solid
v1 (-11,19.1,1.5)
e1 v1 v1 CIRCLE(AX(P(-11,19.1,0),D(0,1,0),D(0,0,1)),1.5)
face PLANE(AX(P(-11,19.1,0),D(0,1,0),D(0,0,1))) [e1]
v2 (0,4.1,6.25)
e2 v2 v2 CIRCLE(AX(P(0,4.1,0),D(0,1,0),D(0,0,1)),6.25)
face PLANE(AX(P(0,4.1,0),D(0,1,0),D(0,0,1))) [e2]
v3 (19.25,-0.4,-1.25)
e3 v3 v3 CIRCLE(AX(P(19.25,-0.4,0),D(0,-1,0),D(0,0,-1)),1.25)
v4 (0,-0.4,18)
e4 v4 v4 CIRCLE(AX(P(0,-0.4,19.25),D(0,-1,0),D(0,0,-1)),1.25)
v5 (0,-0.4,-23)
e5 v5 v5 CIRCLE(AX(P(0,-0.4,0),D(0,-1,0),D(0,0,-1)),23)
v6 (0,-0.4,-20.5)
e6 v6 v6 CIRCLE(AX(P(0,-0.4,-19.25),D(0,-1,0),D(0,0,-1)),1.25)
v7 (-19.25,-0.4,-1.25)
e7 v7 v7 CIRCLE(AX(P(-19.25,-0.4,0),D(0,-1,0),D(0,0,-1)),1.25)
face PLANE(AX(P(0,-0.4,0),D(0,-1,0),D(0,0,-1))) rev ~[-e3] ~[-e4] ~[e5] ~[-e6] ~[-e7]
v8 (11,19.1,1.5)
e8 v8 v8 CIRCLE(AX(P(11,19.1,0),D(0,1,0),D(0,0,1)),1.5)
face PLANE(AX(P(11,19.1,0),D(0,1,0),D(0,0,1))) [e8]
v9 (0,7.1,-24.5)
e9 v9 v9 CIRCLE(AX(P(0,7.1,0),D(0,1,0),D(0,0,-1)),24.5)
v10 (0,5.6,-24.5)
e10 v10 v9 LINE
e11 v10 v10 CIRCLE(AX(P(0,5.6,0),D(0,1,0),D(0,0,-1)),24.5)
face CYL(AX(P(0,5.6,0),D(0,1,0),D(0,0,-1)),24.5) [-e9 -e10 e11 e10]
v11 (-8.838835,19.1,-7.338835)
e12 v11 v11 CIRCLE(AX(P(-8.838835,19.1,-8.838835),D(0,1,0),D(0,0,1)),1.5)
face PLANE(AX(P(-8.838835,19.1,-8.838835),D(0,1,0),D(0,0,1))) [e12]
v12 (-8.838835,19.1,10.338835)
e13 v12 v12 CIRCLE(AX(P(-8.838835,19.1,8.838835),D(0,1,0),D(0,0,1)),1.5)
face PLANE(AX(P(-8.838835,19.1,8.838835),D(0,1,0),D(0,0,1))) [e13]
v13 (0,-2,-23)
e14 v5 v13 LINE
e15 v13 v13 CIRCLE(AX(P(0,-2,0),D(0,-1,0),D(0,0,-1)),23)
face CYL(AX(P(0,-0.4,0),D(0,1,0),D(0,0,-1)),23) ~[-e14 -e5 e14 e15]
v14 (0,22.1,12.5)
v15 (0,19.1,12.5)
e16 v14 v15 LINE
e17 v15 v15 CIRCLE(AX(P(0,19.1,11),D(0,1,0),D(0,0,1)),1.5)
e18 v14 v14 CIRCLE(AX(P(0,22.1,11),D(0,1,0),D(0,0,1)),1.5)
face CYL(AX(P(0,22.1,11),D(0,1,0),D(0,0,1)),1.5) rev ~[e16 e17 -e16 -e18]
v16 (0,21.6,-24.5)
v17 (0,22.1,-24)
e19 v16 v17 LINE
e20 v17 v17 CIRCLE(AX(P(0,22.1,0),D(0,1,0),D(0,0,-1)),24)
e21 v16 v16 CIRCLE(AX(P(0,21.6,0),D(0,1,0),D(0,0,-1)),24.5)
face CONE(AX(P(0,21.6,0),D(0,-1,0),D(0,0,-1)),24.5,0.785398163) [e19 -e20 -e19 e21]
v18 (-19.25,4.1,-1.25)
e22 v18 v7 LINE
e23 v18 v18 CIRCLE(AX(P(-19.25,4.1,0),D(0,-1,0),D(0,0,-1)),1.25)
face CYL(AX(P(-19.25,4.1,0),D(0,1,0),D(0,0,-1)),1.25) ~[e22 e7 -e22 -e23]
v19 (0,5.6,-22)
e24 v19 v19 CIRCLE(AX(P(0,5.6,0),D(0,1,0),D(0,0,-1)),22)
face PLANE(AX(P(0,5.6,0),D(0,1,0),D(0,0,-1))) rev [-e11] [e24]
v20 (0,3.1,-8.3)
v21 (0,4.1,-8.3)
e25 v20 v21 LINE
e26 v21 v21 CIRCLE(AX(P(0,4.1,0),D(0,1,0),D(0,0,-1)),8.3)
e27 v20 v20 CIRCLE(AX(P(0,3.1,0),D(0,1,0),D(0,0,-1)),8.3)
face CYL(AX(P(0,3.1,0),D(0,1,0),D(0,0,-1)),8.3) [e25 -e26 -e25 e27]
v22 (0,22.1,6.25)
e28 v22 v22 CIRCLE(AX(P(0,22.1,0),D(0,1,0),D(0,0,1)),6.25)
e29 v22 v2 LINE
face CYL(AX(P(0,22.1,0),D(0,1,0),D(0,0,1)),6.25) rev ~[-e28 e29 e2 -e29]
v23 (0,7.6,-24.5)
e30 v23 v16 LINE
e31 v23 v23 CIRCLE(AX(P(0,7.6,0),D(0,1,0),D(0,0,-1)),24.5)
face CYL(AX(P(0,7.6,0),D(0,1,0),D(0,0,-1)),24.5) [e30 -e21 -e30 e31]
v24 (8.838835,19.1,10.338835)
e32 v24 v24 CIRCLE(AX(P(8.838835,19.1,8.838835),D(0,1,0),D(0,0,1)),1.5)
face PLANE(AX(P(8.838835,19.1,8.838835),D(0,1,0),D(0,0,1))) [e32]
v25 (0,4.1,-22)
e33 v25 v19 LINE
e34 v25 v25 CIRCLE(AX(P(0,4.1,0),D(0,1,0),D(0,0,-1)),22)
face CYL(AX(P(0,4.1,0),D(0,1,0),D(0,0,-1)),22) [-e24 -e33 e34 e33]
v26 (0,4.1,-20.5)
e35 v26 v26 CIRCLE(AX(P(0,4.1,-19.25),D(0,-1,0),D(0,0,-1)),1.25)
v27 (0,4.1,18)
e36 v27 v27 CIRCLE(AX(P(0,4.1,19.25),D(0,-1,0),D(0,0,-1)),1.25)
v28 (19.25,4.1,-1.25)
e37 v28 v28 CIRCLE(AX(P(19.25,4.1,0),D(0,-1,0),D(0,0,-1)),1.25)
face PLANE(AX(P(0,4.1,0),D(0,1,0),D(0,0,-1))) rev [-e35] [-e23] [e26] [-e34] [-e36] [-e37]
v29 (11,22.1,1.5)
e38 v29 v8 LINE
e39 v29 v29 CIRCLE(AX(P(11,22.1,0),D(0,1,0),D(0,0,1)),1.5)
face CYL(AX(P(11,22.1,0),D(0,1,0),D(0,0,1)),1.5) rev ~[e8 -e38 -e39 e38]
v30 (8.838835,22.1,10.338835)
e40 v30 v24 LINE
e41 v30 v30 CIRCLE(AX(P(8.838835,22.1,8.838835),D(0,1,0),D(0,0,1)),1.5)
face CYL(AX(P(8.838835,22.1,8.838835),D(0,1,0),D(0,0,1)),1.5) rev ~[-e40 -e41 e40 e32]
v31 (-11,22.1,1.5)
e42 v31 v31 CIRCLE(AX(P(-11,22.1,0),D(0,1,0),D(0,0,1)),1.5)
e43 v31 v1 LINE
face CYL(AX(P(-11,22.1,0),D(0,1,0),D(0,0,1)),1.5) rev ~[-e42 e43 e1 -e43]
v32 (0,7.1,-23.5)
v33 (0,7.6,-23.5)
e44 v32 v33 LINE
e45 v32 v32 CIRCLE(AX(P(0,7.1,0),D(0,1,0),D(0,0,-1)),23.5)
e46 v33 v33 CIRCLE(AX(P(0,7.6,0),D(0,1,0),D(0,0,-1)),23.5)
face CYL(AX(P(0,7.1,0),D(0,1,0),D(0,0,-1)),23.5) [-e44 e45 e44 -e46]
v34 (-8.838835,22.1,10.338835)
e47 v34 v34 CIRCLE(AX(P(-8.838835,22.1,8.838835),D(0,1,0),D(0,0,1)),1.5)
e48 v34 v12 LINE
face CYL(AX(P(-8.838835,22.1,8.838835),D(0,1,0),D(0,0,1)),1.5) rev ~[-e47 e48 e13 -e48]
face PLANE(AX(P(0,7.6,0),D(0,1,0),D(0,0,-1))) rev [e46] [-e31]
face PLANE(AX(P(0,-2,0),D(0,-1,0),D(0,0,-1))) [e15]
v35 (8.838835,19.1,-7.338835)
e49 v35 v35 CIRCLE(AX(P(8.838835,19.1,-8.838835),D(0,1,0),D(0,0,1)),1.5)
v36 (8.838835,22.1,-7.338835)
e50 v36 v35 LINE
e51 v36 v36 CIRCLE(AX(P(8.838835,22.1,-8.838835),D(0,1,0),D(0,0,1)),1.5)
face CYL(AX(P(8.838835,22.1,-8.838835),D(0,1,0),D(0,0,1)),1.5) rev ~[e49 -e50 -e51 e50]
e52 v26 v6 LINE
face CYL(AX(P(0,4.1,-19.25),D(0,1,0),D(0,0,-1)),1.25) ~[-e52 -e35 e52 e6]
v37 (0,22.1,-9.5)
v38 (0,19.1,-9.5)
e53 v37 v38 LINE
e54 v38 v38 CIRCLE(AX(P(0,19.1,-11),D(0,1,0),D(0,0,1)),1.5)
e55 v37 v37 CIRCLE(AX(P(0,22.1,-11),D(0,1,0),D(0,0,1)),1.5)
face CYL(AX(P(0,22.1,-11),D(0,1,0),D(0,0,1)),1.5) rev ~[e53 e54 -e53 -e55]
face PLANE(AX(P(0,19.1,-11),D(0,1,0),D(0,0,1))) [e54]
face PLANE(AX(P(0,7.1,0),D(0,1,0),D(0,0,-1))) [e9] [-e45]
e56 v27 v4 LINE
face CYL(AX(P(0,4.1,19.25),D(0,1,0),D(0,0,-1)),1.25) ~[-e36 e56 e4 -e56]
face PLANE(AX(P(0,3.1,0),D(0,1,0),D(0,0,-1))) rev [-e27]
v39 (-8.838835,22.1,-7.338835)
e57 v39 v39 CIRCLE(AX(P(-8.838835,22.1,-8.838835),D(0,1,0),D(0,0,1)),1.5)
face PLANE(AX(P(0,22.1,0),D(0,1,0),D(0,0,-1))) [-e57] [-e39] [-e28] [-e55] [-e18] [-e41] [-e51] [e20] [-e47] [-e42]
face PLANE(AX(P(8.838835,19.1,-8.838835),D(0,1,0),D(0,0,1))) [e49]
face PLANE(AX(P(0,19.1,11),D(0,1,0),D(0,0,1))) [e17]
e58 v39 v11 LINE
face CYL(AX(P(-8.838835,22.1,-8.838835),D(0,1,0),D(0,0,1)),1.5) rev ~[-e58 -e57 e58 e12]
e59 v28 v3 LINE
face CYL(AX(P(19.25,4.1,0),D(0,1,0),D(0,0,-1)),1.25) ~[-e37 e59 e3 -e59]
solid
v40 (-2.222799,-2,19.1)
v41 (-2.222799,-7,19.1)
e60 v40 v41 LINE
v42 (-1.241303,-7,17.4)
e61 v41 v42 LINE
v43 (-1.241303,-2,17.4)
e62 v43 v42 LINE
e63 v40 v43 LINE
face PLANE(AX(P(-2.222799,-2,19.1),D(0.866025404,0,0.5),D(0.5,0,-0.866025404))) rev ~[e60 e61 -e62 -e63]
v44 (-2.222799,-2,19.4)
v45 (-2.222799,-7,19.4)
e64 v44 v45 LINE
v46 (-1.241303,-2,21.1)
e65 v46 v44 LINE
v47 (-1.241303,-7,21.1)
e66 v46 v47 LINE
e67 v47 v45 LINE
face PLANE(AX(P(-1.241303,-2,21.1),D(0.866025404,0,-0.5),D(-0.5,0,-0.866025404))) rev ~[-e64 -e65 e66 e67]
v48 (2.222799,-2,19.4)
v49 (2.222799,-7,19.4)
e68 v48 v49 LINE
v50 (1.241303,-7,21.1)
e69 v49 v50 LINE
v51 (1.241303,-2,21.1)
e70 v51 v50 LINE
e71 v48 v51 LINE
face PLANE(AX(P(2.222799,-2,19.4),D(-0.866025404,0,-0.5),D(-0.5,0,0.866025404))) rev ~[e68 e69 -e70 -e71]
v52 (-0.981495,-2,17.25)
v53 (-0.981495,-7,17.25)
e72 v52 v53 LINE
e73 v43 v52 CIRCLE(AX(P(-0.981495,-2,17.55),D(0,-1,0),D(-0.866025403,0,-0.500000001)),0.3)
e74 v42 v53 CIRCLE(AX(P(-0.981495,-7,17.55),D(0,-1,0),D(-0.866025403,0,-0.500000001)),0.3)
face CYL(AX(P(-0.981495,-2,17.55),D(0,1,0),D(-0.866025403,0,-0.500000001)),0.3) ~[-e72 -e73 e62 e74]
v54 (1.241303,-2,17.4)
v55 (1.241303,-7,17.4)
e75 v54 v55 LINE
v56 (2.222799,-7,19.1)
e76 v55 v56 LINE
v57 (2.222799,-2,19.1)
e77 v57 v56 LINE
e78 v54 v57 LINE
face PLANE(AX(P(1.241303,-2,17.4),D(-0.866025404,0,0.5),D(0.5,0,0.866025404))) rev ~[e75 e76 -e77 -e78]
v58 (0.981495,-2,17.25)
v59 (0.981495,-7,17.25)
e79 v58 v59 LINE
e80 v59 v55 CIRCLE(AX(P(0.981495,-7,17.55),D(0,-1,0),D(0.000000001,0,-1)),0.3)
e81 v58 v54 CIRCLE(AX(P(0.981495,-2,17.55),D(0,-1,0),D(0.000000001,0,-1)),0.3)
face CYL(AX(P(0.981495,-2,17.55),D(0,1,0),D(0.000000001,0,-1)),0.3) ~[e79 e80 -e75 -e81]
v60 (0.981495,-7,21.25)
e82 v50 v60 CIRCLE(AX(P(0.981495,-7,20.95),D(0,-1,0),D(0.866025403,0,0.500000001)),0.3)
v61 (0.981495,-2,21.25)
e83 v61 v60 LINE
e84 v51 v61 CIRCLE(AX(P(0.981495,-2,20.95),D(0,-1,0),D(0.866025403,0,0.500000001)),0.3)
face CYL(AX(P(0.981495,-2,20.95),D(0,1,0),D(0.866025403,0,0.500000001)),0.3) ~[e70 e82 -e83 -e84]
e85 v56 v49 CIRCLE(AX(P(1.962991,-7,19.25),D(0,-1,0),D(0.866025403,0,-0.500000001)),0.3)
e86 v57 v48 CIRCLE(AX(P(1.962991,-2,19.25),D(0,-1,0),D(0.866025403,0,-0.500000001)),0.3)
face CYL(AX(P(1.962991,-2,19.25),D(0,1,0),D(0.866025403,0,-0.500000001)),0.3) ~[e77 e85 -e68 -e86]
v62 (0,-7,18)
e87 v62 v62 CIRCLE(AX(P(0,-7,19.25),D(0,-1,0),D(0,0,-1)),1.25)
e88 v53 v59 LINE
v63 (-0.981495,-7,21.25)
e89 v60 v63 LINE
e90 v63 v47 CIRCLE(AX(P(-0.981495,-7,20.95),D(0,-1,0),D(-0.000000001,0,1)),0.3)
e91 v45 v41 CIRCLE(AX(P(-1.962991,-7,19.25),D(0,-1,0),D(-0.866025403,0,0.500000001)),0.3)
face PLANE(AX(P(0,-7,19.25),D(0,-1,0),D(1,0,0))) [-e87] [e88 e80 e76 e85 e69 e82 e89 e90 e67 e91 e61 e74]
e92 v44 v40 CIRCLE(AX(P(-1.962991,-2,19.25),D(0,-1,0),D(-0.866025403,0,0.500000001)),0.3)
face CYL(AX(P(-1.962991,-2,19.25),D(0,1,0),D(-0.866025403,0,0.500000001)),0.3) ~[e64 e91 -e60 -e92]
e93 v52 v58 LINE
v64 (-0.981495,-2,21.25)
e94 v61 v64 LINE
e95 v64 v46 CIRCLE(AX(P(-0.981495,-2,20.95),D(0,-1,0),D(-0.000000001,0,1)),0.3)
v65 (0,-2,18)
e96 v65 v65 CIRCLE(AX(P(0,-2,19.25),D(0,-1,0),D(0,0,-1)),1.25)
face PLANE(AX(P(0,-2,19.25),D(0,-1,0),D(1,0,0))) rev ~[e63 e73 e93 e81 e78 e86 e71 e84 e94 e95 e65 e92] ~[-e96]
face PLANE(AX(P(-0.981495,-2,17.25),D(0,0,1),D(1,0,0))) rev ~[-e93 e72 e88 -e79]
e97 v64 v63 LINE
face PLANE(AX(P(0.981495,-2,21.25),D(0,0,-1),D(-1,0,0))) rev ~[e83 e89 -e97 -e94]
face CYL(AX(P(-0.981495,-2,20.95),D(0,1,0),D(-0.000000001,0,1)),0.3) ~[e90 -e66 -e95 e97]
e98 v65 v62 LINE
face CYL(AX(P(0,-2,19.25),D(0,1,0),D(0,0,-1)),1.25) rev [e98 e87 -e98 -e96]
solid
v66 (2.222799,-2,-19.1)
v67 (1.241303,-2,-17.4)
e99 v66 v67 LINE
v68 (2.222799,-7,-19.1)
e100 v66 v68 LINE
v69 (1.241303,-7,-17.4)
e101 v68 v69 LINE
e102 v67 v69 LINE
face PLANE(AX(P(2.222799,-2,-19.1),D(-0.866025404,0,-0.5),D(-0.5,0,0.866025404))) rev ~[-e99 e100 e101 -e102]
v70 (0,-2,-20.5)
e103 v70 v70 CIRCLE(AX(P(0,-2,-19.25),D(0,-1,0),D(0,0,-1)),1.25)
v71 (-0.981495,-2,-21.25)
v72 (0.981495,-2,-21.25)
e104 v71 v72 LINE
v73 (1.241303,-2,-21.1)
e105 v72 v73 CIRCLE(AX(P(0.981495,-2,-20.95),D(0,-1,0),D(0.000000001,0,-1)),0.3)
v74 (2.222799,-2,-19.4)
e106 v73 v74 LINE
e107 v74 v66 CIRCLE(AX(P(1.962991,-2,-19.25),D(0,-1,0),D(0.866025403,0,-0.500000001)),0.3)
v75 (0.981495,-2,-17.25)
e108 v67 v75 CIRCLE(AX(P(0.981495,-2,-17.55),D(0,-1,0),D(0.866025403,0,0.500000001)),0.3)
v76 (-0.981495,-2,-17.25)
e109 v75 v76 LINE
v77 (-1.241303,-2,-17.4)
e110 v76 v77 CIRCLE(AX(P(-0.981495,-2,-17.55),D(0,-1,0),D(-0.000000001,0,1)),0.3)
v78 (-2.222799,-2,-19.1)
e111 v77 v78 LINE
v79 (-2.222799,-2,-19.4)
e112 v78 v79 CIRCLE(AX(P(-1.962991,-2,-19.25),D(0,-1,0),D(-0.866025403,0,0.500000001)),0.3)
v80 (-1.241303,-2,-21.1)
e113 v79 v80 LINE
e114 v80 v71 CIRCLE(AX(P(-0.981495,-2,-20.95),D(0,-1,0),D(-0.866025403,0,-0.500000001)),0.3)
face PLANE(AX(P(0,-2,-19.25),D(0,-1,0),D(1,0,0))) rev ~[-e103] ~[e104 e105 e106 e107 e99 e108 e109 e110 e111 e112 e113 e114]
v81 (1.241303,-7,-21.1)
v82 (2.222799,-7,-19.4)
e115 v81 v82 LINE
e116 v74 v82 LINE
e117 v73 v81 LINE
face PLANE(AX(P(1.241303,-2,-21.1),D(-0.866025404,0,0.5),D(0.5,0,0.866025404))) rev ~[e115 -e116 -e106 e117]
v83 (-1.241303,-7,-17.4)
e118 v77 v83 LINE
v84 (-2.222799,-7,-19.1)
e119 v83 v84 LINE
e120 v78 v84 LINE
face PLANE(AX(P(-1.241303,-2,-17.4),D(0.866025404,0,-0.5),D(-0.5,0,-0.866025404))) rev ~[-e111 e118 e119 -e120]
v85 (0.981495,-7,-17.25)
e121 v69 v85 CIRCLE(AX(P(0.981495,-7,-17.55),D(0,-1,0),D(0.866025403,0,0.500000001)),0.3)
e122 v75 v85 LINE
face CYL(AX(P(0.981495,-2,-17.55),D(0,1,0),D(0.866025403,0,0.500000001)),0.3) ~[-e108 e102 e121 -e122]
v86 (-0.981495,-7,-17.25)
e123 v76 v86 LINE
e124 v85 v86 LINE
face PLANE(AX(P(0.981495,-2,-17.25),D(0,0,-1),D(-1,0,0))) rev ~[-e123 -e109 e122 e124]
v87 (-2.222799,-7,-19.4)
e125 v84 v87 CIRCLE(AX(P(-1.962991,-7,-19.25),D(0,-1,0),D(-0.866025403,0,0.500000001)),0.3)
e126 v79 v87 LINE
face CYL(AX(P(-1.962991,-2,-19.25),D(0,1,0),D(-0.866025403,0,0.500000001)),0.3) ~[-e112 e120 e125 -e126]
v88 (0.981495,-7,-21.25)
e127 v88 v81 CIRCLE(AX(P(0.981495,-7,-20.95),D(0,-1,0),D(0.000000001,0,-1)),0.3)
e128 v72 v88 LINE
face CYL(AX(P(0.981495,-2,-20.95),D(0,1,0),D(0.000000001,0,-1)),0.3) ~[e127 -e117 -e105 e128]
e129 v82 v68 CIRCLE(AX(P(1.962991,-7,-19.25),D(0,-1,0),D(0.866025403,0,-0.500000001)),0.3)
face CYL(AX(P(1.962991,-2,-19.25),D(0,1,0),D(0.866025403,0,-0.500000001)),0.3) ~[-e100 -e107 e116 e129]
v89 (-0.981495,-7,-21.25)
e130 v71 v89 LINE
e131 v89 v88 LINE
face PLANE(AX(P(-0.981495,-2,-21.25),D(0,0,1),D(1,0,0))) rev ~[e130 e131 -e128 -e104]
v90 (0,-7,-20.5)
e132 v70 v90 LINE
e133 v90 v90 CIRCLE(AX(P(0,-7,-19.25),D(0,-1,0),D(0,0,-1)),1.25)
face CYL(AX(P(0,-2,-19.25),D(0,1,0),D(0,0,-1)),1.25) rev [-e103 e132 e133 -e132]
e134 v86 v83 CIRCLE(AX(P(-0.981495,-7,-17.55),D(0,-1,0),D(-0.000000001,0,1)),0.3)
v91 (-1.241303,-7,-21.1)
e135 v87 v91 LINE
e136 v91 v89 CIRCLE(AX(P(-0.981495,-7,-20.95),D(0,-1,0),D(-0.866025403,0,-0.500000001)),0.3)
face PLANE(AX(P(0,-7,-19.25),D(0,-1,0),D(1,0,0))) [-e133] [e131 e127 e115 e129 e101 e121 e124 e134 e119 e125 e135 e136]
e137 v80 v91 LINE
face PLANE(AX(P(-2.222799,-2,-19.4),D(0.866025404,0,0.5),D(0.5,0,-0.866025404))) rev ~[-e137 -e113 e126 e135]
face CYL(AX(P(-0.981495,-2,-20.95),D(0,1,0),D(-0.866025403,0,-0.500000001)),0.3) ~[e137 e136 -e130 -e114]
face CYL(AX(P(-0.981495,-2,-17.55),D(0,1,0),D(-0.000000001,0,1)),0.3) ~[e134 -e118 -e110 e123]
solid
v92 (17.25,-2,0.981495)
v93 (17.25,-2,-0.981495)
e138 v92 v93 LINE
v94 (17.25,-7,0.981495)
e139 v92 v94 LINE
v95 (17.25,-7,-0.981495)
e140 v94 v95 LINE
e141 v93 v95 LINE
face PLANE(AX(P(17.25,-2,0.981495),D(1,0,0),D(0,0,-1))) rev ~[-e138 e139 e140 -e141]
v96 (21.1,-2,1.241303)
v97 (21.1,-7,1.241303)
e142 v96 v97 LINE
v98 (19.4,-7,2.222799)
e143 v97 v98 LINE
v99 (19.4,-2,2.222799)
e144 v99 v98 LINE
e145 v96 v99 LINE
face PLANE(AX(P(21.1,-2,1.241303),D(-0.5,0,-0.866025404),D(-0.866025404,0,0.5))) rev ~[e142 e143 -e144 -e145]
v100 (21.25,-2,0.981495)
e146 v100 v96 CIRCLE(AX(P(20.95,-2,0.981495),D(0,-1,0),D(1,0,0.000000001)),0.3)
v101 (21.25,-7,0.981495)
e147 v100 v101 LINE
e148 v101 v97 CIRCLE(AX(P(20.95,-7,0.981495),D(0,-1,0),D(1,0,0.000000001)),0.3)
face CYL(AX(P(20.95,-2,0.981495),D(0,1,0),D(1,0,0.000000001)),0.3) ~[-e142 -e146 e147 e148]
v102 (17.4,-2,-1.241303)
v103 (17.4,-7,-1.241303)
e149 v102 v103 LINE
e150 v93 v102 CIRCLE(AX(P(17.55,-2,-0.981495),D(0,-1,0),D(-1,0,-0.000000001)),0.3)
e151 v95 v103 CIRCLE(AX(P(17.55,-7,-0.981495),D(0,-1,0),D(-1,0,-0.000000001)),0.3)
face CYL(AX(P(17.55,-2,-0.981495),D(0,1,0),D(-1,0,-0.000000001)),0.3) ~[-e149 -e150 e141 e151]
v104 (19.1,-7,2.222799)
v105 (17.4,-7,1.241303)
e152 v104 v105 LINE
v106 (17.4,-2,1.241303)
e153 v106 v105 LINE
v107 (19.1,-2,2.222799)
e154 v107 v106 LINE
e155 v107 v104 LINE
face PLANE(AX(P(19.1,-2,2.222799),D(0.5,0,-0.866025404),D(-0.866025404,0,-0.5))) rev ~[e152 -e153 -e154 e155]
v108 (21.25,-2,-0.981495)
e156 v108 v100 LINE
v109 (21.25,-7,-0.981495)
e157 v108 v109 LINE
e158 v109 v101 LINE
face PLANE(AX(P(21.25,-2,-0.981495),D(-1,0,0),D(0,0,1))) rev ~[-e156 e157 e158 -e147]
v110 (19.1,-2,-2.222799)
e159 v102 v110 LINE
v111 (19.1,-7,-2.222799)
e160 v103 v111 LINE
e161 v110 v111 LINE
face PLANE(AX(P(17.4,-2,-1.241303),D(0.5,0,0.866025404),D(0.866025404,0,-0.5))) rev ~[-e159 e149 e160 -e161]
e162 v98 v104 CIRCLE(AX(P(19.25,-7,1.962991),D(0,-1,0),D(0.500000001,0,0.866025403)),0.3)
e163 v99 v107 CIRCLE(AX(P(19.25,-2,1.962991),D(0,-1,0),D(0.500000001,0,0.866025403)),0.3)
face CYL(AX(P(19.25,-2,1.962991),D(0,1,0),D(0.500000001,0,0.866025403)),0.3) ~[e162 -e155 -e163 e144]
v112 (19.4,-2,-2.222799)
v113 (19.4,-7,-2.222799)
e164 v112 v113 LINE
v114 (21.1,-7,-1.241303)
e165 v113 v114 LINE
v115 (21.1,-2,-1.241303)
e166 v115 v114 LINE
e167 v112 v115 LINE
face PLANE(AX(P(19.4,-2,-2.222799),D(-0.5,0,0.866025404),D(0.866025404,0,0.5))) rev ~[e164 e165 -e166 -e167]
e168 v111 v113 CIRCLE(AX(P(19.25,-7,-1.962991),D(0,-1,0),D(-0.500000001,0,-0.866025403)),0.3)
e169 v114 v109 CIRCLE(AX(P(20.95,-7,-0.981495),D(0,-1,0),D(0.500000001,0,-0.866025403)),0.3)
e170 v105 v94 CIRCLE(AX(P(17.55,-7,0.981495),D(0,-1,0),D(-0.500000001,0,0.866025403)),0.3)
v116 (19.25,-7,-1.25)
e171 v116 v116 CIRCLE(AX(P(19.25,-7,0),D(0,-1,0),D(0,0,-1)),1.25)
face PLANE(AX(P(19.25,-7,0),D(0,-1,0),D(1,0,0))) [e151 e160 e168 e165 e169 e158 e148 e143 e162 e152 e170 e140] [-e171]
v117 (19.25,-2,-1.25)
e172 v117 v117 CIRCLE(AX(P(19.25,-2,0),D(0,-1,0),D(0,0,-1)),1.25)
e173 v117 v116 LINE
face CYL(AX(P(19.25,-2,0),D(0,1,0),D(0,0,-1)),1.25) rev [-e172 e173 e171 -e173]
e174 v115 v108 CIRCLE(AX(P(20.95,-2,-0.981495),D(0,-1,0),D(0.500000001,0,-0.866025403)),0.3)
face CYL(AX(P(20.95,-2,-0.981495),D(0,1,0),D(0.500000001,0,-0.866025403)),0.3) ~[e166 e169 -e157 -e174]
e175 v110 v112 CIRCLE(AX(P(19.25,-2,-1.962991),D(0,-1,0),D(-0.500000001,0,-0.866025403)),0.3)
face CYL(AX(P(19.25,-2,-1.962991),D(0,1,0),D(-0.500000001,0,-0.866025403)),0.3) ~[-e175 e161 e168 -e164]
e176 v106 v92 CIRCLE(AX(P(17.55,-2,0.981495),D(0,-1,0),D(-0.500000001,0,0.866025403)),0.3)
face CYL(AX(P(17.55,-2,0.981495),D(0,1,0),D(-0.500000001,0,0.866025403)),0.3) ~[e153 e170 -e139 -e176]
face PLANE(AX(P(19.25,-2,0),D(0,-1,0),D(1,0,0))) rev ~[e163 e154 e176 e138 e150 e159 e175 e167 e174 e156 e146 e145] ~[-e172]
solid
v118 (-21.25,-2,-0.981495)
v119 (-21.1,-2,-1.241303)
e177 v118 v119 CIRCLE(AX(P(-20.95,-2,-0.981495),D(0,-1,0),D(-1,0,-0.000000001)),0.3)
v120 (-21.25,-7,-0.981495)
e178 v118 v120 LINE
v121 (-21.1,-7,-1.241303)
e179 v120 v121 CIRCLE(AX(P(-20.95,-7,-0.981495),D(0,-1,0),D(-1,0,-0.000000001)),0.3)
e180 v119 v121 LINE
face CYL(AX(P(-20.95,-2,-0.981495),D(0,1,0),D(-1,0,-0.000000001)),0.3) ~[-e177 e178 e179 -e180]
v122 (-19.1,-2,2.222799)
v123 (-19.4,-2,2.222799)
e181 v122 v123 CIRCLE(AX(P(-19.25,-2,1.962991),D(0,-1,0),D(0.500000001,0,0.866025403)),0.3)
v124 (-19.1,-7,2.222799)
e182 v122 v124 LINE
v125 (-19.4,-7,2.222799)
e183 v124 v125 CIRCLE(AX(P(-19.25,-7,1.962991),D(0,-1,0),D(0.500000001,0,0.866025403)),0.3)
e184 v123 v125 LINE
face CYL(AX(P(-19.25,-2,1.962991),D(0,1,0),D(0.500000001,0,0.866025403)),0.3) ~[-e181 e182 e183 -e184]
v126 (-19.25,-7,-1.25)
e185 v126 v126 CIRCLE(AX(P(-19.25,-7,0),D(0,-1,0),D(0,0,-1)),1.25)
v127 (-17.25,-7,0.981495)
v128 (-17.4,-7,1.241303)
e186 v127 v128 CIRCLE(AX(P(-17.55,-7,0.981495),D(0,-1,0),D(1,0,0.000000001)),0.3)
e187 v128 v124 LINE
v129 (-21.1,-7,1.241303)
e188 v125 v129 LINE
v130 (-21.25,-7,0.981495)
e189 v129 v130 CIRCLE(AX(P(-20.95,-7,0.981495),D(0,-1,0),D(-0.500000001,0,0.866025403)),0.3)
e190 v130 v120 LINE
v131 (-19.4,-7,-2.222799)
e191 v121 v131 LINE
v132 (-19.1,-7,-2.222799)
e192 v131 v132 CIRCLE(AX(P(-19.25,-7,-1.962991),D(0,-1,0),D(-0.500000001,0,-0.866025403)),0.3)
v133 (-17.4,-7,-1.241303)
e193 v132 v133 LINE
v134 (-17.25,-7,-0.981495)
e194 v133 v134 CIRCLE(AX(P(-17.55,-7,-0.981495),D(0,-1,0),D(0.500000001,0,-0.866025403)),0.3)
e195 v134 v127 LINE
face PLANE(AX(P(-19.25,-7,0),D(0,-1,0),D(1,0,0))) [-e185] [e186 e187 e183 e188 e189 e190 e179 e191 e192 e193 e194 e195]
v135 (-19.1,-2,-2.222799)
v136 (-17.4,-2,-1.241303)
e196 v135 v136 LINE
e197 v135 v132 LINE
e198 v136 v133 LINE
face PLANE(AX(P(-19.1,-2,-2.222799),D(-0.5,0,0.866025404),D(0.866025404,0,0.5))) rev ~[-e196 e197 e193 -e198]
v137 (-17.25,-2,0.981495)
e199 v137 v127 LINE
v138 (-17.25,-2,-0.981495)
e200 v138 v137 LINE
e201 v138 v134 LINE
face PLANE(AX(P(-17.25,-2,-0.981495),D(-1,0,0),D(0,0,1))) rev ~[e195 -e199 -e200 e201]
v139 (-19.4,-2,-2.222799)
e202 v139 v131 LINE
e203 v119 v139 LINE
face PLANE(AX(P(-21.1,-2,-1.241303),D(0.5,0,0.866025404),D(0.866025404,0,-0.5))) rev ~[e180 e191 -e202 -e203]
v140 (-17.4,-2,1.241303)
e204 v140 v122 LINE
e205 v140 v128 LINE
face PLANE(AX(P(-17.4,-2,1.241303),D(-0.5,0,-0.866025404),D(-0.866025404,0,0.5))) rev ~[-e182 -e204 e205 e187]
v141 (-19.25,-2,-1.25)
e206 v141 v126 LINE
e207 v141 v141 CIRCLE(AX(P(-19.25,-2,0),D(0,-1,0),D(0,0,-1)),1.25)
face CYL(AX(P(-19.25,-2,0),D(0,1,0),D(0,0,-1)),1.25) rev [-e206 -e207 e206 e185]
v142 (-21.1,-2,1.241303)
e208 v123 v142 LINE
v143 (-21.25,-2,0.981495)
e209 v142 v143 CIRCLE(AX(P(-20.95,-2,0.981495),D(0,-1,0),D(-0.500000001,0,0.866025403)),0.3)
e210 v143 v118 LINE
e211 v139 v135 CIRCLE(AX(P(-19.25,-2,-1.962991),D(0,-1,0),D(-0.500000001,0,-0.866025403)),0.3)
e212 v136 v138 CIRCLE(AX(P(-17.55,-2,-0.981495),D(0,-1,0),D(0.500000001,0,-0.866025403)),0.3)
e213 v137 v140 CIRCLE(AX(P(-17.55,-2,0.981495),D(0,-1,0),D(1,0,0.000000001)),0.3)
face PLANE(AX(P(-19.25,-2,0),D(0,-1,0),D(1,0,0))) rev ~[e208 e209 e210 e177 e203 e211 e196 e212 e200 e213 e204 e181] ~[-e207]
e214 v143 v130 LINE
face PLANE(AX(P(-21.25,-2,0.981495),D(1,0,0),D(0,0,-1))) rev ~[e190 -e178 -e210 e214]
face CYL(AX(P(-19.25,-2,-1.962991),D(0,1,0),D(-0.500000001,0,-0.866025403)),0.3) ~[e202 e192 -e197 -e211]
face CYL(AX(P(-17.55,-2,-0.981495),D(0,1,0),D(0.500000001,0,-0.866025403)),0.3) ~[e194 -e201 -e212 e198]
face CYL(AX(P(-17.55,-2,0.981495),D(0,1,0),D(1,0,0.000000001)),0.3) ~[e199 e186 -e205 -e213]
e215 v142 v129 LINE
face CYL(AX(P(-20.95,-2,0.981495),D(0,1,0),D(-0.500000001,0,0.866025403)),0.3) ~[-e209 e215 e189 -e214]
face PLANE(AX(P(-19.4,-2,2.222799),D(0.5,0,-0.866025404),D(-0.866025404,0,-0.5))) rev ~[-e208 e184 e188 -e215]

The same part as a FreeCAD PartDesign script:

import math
import FreeCAD as App
import Part
import Sketcher
from FreeCAD import Vector
Q = App.Units.Quantity


def add_polygon(sketch, points):
    """Adds a closed chain of lines whose ends are joined by coincident constraints."""
    first, n = sketch.GeometryCount, len(points)
    for a, b in zip(points, points[1:] + points[:1]):
        sketch.addGeometry(Part.LineSegment(App.Vector(*a, 0), App.Vector(*b, 0)), False)
    for i in range(n):
        sketch.addConstraint(Sketcher.Constraint("Coincident", first + i, 2, first + (i + 1) % n, 1))

doc = App.newDocument("Part")
body = doc.addObject("PartDesign::Body", "Body")

sketch1 = body.newObject("Sketcher::SketchObject", "Sketch")
sketch1.AttachmentSupport = (doc.getObject("XY_Plane"), [""])
sketch1.MapMode = "FlatFace"
add_polygon(sketch1, [(24, 22.1), (0, 22.1), (0, 3.1), (8.3, 3.1), (8.3, 4.1), (22, 4.1), (22, 5.6), (24.5, 5.6), (24.5, 7.1), (23.5, 7.1), (23.5, 7.6), (24.5, 7.6), (24.5, 21.6)])
sketch1.addConstraint([
    Sketcher.Constraint("Horizontal", 0),
    Sketcher.Constraint("Vertical", 1),
    Sketcher.Constraint("Horizontal", 2),
    Sketcher.Constraint("Vertical", 3),
    Sketcher.Constraint("Horizontal", 4),
    Sketcher.Constraint("Vertical", 5),
    Sketcher.Constraint("Horizontal", 6),
    Sketcher.Constraint("Vertical", 7),
    Sketcher.Constraint("Horizontal", 8),
    Sketcher.Constraint("Vertical", 9),
    Sketcher.Constraint("Horizontal", 10),
    Sketcher.Constraint("Vertical", 11),
    Sketcher.Constraint("PointOnObject", 0, 2, -2),
    Sketcher.Constraint("Vertical", 7, 2, 10, 2),
    Sketcher.Constraint("Equal", 10, 3),
    Sketcher.Constraint("Equal", 5, 7),
    Sketcher.Constraint("DistanceX", 0, 2, 0, 1, 24.0),
    Sketcher.Constraint("DistanceX", 8, 2, 8, 1, 1.0),
    Sketcher.Constraint("DistanceY", 1, 2, 1, 1, 19.0),
    Sketcher.Constraint("DistanceY", 11, 1, 11, 2, 14.0),
    Sketcher.Constraint("Angle", 12, Q("135 deg")),
    Sketcher.Constraint("DistanceX", 2, 1, 2, 2, 8.3),
    Sketcher.Constraint("DistanceX", 4, 1, 4, 2, 13.7),
    Sketcher.Constraint("DistanceX", 6, 1, 6, 2, 2.5),
    Sketcher.Constraint("DistanceY", 5, 1, 5, 2, 1.5),
    Sketcher.Constraint("DistanceY", -1, 1, 0, 2, 22.1),
])
revolution = body.newObject("PartDesign::Revolution", "Revolution")
revolution.Profile = sketch1
revolution.ReferenceAxis = (sketch1, ["V_Axis"])
revolution.Angle = 360

sketch2 = body.newObject("Sketcher::SketchObject", "Sketch001")
sketch2.AttachmentSupport = (doc.getObject("XZ_Plane"), [""])
sketch2.MapMode = "FlatFace"
sketch2.AttachmentOffset = App.Placement(Vector(0, 0, -22.1), App.Rotation())
sketch2.addGeometry([
    Part.Circle(Vector(0, -11, 0), Vector(0, 0, 1), 1.5),
    Part.Circle(Vector(11, 0, 0), Vector(0, 0, 1), 1.5),
    Part.Circle(Vector(0, 11, 0), Vector(0, 0, 1), 1.5),
    Part.Circle(Vector(-11, 0, 0), Vector(0, 0, 1), 1.5),
    Part.Circle(Vector(8.838835, -8.838835, 0), Vector(0, 0, 1), 1.5),
    Part.Circle(Vector(8.838835, 8.838835, 0), Vector(0, 0, 1), 1.5),
    Part.Circle(Vector(-8.838835, 8.838835, 0), Vector(0, 0, 1), 1.5),
    Part.Circle(Vector(-8.838835, -8.838835, 0), Vector(0, 0, 1), 1.5),
], False)
sketch2.addConstraint([
    Sketcher.Constraint("Equal", 0, 1),
    Sketcher.Constraint("Equal", 1, 2),
    Sketcher.Constraint("Equal", 2, 3),
    Sketcher.Constraint("Equal", 3, 4),
    Sketcher.Constraint("Equal", 4, 5),
    Sketcher.Constraint("Equal", 5, 6),
    Sketcher.Constraint("Equal", 6, 7),
    Sketcher.Constraint("Symmetric", 0, 3, 2, 3, -1, 1),
    Sketcher.Constraint("Symmetric", 1, 3, 3, 3, -1, 1),
    Sketcher.Constraint("Symmetric", 4, 3, 6, 3, -1, 1),
    Sketcher.Constraint("Symmetric", 5, 3, 7, 3, -1, 1),
    Sketcher.Constraint("Symmetric", 5, 3, 6, 3, -2),
    Sketcher.Constraint("PointOnObject", 0, 3, -2),
    Sketcher.Constraint("PointOnObject", 1, 3, -1),
    Sketcher.Constraint("Diameter", 0, 3.0),
    Sketcher.Constraint("DistanceY", 0, 3, -1, 1, 11.0),
    Sketcher.Constraint("DistanceX", -1, 1, 1, 3, 11.0),
    Sketcher.Constraint("DistanceY", 4, 3, 5, 3, 17.67767),
    Sketcher.Constraint("DistanceX", 6, 3, 5, 3, 17.67767),
])
pocket1 = body.newObject("PartDesign::Pocket", "Pocket")
pocket1.Profile = sketch2
pocket1.Length = 3
pocket1.Reversed = True

sketch3 = body.newObject("Sketcher::SketchObject", "Sketch002")
sketch3.AttachmentSupport = (doc.getObject("XZ_Plane"), [""])
sketch3.MapMode = "FlatFace"
sketch3.AttachmentOffset = App.Placement(Vector(0, 0, -22.1), App.Rotation())
sketch3.addGeometry(Part.Circle(Vector(0, 0, 0), Vector(0, 0, 1), 6.25), False)
sketch3.addConstraint([
    Sketcher.Constraint("Coincident", 0, 3, -1, 1),
    Sketcher.Constraint("Diameter", 0, 12.5),
])
pocket2 = body.newObject("PartDesign::Pocket", "Pocket001")
pocket2.Profile = sketch3
pocket2.Length = 18
pocket2.Reversed = True

sketch4 = body.newObject("Sketcher::SketchObject", "Sketch003")
sketch4.AttachmentSupport = (doc.getObject("XZ_Plane"), [""])
sketch4.MapMode = "FlatFace"
sketch4.AttachmentOffset = App.Placement(Vector(0, 0, -4.1), App.Rotation())
sketch4.addGeometry([
    Part.Circle(Vector(0, 19.25, 0), Vector(0, 0, 1), 1.25),
    Part.Circle(Vector(19.25, 0, 0), Vector(0, 0, 1), 1.25),
    Part.Circle(Vector(0, -19.25, 0), Vector(0, 0, 1), 1.25),
    Part.Circle(Vector(-19.25, 0, 0), Vector(0, 0, 1), 1.25),
], False)
sketch4.addConstraint([
    Sketcher.Constraint("Equal", 0, 1),
    Sketcher.Constraint("Equal", 1, 2),
    Sketcher.Constraint("Equal", 2, 3),
    Sketcher.Constraint("Symmetric", 0, 3, 2, 3, -1, 1),
    Sketcher.Constraint("Symmetric", 1, 3, 3, 3, -1, 1),
    Sketcher.Constraint("PointOnObject", 0, 3, -2),
    Sketcher.Constraint("PointOnObject", 1, 3, -1),
    Sketcher.Constraint("Diameter", 0, 2.5),
    Sketcher.Constraint("DistanceY", 2, 3, 0, 3, 38.5),
    Sketcher.Constraint("DistanceX", 3, 3, 1, 3, 38.5),
])
pad1 = body.newObject("PartDesign::Pad", "Pad")
pad1.Profile = sketch4
pad1.Length = 4.5

sketch5 = body.newObject("Sketcher::SketchObject", "Sketch004")
sketch5.AttachmentSupport = (doc.getObject("XZ_Plane"), [""])
sketch5.MapMode = "FlatFace"
sketch5.AttachmentOffset = App.Placement(Vector(0, 0, 0.4), App.Rotation())
sketch5.addGeometry(Part.Circle(Vector(0, 0, 0), Vector(0, 0, 1), 23), False)
sketch5.addConstraint([
    Sketcher.Constraint("Coincident", 0, 3, -1, 1),
    Sketcher.Constraint("Diameter", 0, 46.0),
])
pad2 = body.newObject("PartDesign::Pad", "Pad001")
pad2.Profile = sketch5
pad2.Length = 1.6
body2 = doc.addObject("PartDesign::Body", "Body001")

sketch6 = body2.newObject("Sketcher::SketchObject", "Sketch005")
sketch6.AttachmentSupport = (doc.getObject("XZ_Plane001"), [""])
sketch6.MapMode = "FlatFace"
sketch6.AttachmentOffset = App.Placement(Vector(0, 0, 2), App.Rotation())
sketch6.addGeometry([
    Part.LineSegment(Vector(21.1, 1.241303, 0), Vector(19.4, 2.222799, 0)),
    Part.ArcOfCircle(Part.Circle(Vector(19.25, 1.962991, 0), Vector(0, 0, 1), 0.3), math.radians(60), math.radians(120)),
    Part.LineSegment(Vector(19.1, 2.222799, 0), Vector(17.4, 1.241303, 0)),
    Part.ArcOfCircle(Part.Circle(Vector(17.55, 0.981495, 0), Vector(0, 0, 1), 0.3), math.radians(120), math.radians(180)),
    Part.LineSegment(Vector(17.25, 0.981495, 0), Vector(17.25, -0.981495, 0)),
    Part.ArcOfCircle(Part.Circle(Vector(17.55, -0.981495, 0), Vector(0, 0, 1), 0.3), math.radians(180), math.radians(240)),
    Part.LineSegment(Vector(17.4, -1.241303, 0), Vector(19.1, -2.222799, 0)),
    Part.ArcOfCircle(Part.Circle(Vector(19.25, -1.962991, 0), Vector(0, 0, 1), 0.3), math.radians(-120), math.radians(-60)),
    Part.LineSegment(Vector(19.4, -2.222799, 0), Vector(21.1, -1.241303, 0)),
    Part.ArcOfCircle(Part.Circle(Vector(20.95, -0.981495, 0), Vector(0, 0, 1), 0.3), math.radians(-60), math.radians(0)),
    Part.LineSegment(Vector(21.25, -0.981495, 0), Vector(21.25, 0.981495, 0)),
    Part.ArcOfCircle(Part.Circle(Vector(20.95, 0.981495, 0), Vector(0, 0, 1), 0.3), math.radians(0), math.radians(60)),
    Part.Circle(Vector(19.25, 0, 0), Vector(0, 0, 1), 1.25),
], False)
sketch6.addConstraint([
    Sketcher.Constraint("Tangent", 0, 2, 1, 1),
    Sketcher.Constraint("Tangent", 1, 2, 2, 1),
    Sketcher.Constraint("Tangent", 2, 2, 3, 1),
    Sketcher.Constraint("Tangent", 3, 2, 4, 1),
    Sketcher.Constraint("Tangent", 4, 2, 5, 1),
    Sketcher.Constraint("Tangent", 5, 2, 6, 1),
    Sketcher.Constraint("Tangent", 6, 2, 7, 1),
    Sketcher.Constraint("Tangent", 7, 2, 8, 1),
    Sketcher.Constraint("Tangent", 8, 2, 9, 1),
    Sketcher.Constraint("Tangent", 9, 2, 10, 1),
    Sketcher.Constraint("Tangent", 10, 2, 11, 1),
    Sketcher.Constraint("Tangent", 11, 2, 0, 1),
    Sketcher.Constraint("Vertical", 4),
    Sketcher.Constraint("Vertical", 10),
    Sketcher.Constraint("Equal", 1, 3),
    Sketcher.Constraint("Equal", 3, 5),
    Sketcher.Constraint("Equal", 5, 7),
    Sketcher.Constraint("Equal", 7, 9),
    Sketcher.Constraint("Equal", 9, 11),
    Sketcher.Constraint("Symmetric", 1, 3, 7, 3, -1),
    Sketcher.Constraint("PointOnObject", 12, 3, -1),
    Sketcher.Constraint("Parallel", 0, 6),
    Sketcher.Constraint("Parallel", 2, 8),
    Sketcher.Constraint("Horizontal", 5, 3, 9, 3),
    Sketcher.Constraint("Horizontal", 3, 3, 11, 3),
    Sketcher.Constraint("Vertical", 7, 3, 12, 3),
    Sketcher.Constraint("Diameter", 12, 2.5),
    Sketcher.Constraint("Radius", 1, 0.3),
    Sketcher.Constraint("Angle", 0, Q("150 deg")),
    Sketcher.Constraint("DistanceX", 2, 2, 0, 2, 2.0),
    Sketcher.Constraint("DistanceX", -1, 1, 0, 2, 19.4),
    Sketcher.Constraint("DistanceY", 4, 2, 4, 1, 1.962991),
])
pad3 = body2.newObject("PartDesign::Pad", "Pad002")
pad3.Profile = sketch6
pad3.Length = 5
body3 = doc.addObject("PartDesign::Body", "Body002")

sketch7 = body3.newObject("Sketcher::SketchObject", "Sketch006")
sketch7.AttachmentSupport = (doc.getObject("XZ_Plane002"), [""])
sketch7.MapMode = "FlatFace"
sketch7.AttachmentOffset = App.Placement(Vector(0, 0, 2), App.Rotation())
sketch7.addGeometry([
    Part.LineSegment(Vector(-1.241303, 21.1, 0), Vector(-2.222799, 19.4, 0)),
    Part.ArcOfCircle(Part.Circle(Vector(-1.962991, 19.25, 0), Vector(0, 0, 1), 0.3), math.radians(150), math.radians(210)),
    Part.LineSegment(Vector(-2.222799, 19.1, 0), Vector(-1.241303, 17.4, 0)),
    Part.ArcOfCircle(Part.Circle(Vector(-0.981495, 17.55, 0), Vector(0, 0, 1), 0.3), math.radians(-150), math.radians(-90)),
    Part.LineSegment(Vector(-0.981495, 17.25, 0), Vector(0.981495, 17.25, 0)),
    Part.ArcOfCircle(Part.Circle(Vector(0.981495, 17.55, 0), Vector(0, 0, 1), 0.3), math.radians(-90), math.radians(-30)),
    Part.LineSegment(Vector(1.241303, 17.4, 0), Vector(2.222799, 19.1, 0)),
    Part.ArcOfCircle(Part.Circle(Vector(1.962991, 19.25, 0), Vector(0, 0, 1), 0.3), math.radians(-30), math.radians(30)),
    Part.LineSegment(Vector(2.222799, 19.4, 0), Vector(1.241303, 21.1, 0)),
    Part.ArcOfCircle(Part.Circle(Vector(0.981495, 20.95, 0), Vector(0, 0, 1), 0.3), math.radians(30), math.radians(90)),
    Part.LineSegment(Vector(0.981495, 21.25, 0), Vector(-0.981495, 21.25, 0)),
    Part.ArcOfCircle(Part.Circle(Vector(-0.981495, 20.95, 0), Vector(0, 0, 1), 0.3), math.radians(90), math.radians(150)),
    Part.Circle(Vector(0, 19.25, 0), Vector(0, 0, 1), 1.25),
], False)
sketch7.addConstraint([
    Sketcher.Constraint("Tangent", 0, 2, 1, 1),
    Sketcher.Constraint("Tangent", 1, 2, 2, 1),
    Sketcher.Constraint("Tangent", 2, 2, 3, 1),
    Sketcher.Constraint("Tangent", 3, 2, 4, 1),
    Sketcher.Constraint("Tangent", 4, 2, 5, 1),
    Sketcher.Constraint("Tangent", 5, 2, 6, 1),
    Sketcher.Constraint("Tangent", 6, 2, 7, 1),
    Sketcher.Constraint("Tangent", 7, 2, 8, 1),
    Sketcher.Constraint("Tangent", 8, 2, 9, 1),
    Sketcher.Constraint("Tangent", 9, 2, 10, 1),
    Sketcher.Constraint("Tangent", 10, 2, 11, 1),
    Sketcher.Constraint("Tangent", 11, 2, 0, 1),
    Sketcher.Constraint("Horizontal", 4),
    Sketcher.Constraint("Horizontal", 10),
    Sketcher.Constraint("Equal", 1, 3),
    Sketcher.Constraint("Equal", 3, 5),
    Sketcher.Constraint("Equal", 5, 7),
    Sketcher.Constraint("Equal", 7, 9),
    Sketcher.Constraint("Equal", 9, 11),
    Sketcher.Constraint("Symmetric", 1, 3, 7, 3, -2),
    Sketcher.Constraint("PointOnObject", 12, 3, -2),
    Sketcher.Constraint("Parallel", 0, 6),
    Sketcher.Constraint("Parallel", 2, 8),
    Sketcher.Constraint("Horizontal", 7, 3, 12, 3),
    Sketcher.Constraint("Horizontal", 2, 2, 5, 2),
    Sketcher.Constraint("Vertical", 5, 3, 9, 3),
    Sketcher.Constraint("Diameter", 12, 2.5),
    Sketcher.Constraint("Radius", 1, 0.3),
    Sketcher.Constraint("Angle", 0, Q("-120 deg")),
    Sketcher.Constraint("DistanceY", 2, 2, 0, 2, 2.0),
    Sketcher.Constraint("DistanceY", -1, 1, 0, 2, 19.4),
    Sketcher.Constraint("DistanceX", 4, 1, 4, 2, 1.962991),
])
pad4 = body3.newObject("PartDesign::Pad", "Pad003")
pad4.Profile = sketch7
pad4.Length = 5
body4 = doc.addObject("PartDesign::Body", "Body003")

sketch8 = body4.newObject("Sketcher::SketchObject", "Sketch007")
sketch8.AttachmentSupport = (doc.getObject("XZ_Plane003"), [""])
sketch8.MapMode = "FlatFace"
sketch8.AttachmentOffset = App.Placement(Vector(0, 0, 2), App.Rotation())
sketch8.addGeometry([
    Part.LineSegment(Vector(1.241303, -21.1, 0), Vector(2.222799, -19.4, 0)),
    Part.ArcOfCircle(Part.Circle(Vector(1.962991, -19.25, 0), Vector(0, 0, 1), 0.3), math.radians(-30), math.radians(30)),
    Part.LineSegment(Vector(2.222799, -19.1, 0), Vector(1.241303, -17.4, 0)),
    Part.ArcOfCircle(Part.Circle(Vector(0.981495, -17.55, 0), Vector(0, 0, 1), 0.3), math.radians(30), math.radians(90)),
    Part.LineSegment(Vector(0.981495, -17.25, 0), Vector(-0.981495, -17.25, 0)),
    Part.ArcOfCircle(Part.Circle(Vector(-0.981495, -17.55, 0), Vector(0, 0, 1), 0.3), math.radians(90), math.radians(150)),
    Part.LineSegment(Vector(-1.241303, -17.4, 0), Vector(-2.222799, -19.1, 0)),
    Part.ArcOfCircle(Part.Circle(Vector(-1.962991, -19.25, 0), Vector(0, 0, 1), 0.3), math.radians(150), math.radians(210)),
    Part.LineSegment(Vector(-2.222799, -19.4, 0), Vector(-1.241303, -21.1, 0)),
    Part.ArcOfCircle(Part.Circle(Vector(-0.981495, -20.95, 0), Vector(0, 0, 1), 0.3), math.radians(-150), math.radians(-90)),
    Part.LineSegment(Vector(-0.981495, -21.25, 0), Vector(0.981495, -21.25, 0)),
    Part.ArcOfCircle(Part.Circle(Vector(0.981495, -20.95, 0), Vector(0, 0, 1), 0.3), math.radians(-90), math.radians(-30)),
    Part.Circle(Vector(0, -19.25, 0), Vector(0, 0, 1), 1.25),
], False)
sketch8.addConstraint([
    Sketcher.Constraint("Tangent", 0, 2, 1, 1),
    Sketcher.Constraint("Tangent", 1, 2, 2, 1),
    Sketcher.Constraint("Tangent", 2, 2, 3, 1),
    Sketcher.Constraint("Tangent", 3, 2, 4, 1),
    Sketcher.Constraint("Tangent", 4, 2, 5, 1),
    Sketcher.Constraint("Tangent", 5, 2, 6, 1),
    Sketcher.Constraint("Tangent", 6, 2, 7, 1),
    Sketcher.Constraint("Tangent", 7, 2, 8, 1),
    Sketcher.Constraint("Tangent", 8, 2, 9, 1),
    Sketcher.Constraint("Tangent", 9, 2, 10, 1),
    Sketcher.Constraint("Tangent", 10, 2, 11, 1),
    Sketcher.Constraint("Tangent", 11, 2, 0, 1),
    Sketcher.Constraint("Horizontal", 4),
    Sketcher.Constraint("Horizontal", 10),
    Sketcher.Constraint("Equal", 1, 3),
    Sketcher.Constraint("Equal", 3, 5),
    Sketcher.Constraint("Equal", 5, 7),
    Sketcher.Constraint("Equal", 7, 9),
    Sketcher.Constraint("Equal", 9, 11),
    Sketcher.Constraint("Symmetric", 1, 3, 7, 3, -2),
    Sketcher.Constraint("PointOnObject", 12, 3, -2),
    Sketcher.Constraint("Parallel", 0, 6),
    Sketcher.Constraint("Parallel", 2, 8),
    Sketcher.Constraint("Horizontal", 7, 3, 12, 3),
    Sketcher.Constraint("Horizontal", 2, 2, 5, 2),
    Sketcher.Constraint("Vertical", 5, 3, 9, 3),
    Sketcher.Constraint("Diameter", 12, 2.5),
    Sketcher.Constraint("Radius", 1, 0.3),
    Sketcher.Constraint("Angle", 0, Q("60 deg")),
    Sketcher.Constraint("DistanceY", 0, 2, 2, 2, 2.0),
    Sketcher.Constraint("DistanceY", 0, 2, -1, 1, 19.4),
    Sketcher.Constraint("DistanceX", 4, 2, 4, 1, 1.962991),
])
pad5 = body4.newObject("PartDesign::Pad", "Pad004")
pad5.Profile = sketch8
pad5.Length = 5
body5 = doc.addObject("PartDesign::Body", "Body004")

sketch9 = body5.newObject("Sketcher::SketchObject", "Sketch008")
sketch9.AttachmentSupport = (doc.getObject("XZ_Plane004"), [""])
sketch9.MapMode = "FlatFace"
sketch9.AttachmentOffset = App.Placement(Vector(0, 0, 2), App.Rotation())
sketch9.addGeometry([
    Part.LineSegment(Vector(-21.1, -1.241303, 0), Vector(-19.4, -2.222799, 0)),
    Part.ArcOfCircle(Part.Circle(Vector(-19.25, -1.962991, 0), Vector(0, 0, 1), 0.3), math.radians(-120), math.radians(-60)),
    Part.LineSegment(Vector(-19.1, -2.222799, 0), Vector(-17.4, -1.241303, 0)),
    Part.ArcOfCircle(Part.Circle(Vector(-17.55, -0.981495, 0), Vector(0, 0, 1), 0.3), math.radians(-60), math.radians(0)),
    Part.LineSegment(Vector(-17.25, -0.981495, 0), Vector(-17.25, 0.981495, 0)),
    Part.ArcOfCircle(Part.Circle(Vector(-17.55, 0.981495, 0), Vector(0, 0, 1), 0.3), math.radians(0), math.radians(60)),
    Part.LineSegment(Vector(-17.4, 1.241303, 0), Vector(-19.1, 2.222799, 0)),
    Part.ArcOfCircle(Part.Circle(Vector(-19.25, 1.962991, 0), Vector(0, 0, 1), 0.3), math.radians(60), math.radians(120)),
    Part.LineSegment(Vector(-19.4, 2.222799, 0), Vector(-21.1, 1.241303, 0)),
    Part.ArcOfCircle(Part.Circle(Vector(-20.95, 0.981495, 0), Vector(0, 0, 1), 0.3), math.radians(120), math.radians(180)),
    Part.LineSegment(Vector(-21.25, 0.981495, 0), Vector(-21.25, -0.981495, 0)),
    Part.ArcOfCircle(Part.Circle(Vector(-20.95, -0.981495, 0), Vector(0, 0, 1), 0.3), math.radians(180), math.radians(240)),
    Part.Circle(Vector(-19.25, 0, 0), Vector(0, 0, 1), 1.25),
], False)
sketch9.addConstraint([
    Sketcher.Constraint("Tangent", 0, 2, 1, 1),
    Sketcher.Constraint("Tangent", 1, 2, 2, 1),
    Sketcher.Constraint("Tangent", 2, 2, 3, 1),
    Sketcher.Constraint("Tangent", 3, 2, 4, 1),
    Sketcher.Constraint("Tangent", 4, 2, 5, 1),
    Sketcher.Constraint("Tangent", 5, 2, 6, 1),
    Sketcher.Constraint("Tangent", 6, 2, 7, 1),
    Sketcher.Constraint("Tangent", 7, 2, 8, 1),
    Sketcher.Constraint("Tangent", 8, 2, 9, 1),
    Sketcher.Constraint("Tangent", 9, 2, 10, 1),
    Sketcher.Constraint("Tangent", 10, 2, 11, 1),
    Sketcher.Constraint("Tangent", 11, 2, 0, 1),
    Sketcher.Constraint("Vertical", 4),
    Sketcher.Constraint("Vertical", 10),
    Sketcher.Constraint("Equal", 1, 3),
    Sketcher.Constraint("Equal", 3, 5),
    Sketcher.Constraint("Equal", 5, 7),
    Sketcher.Constraint("Equal", 7, 9),
    Sketcher.Constraint("Equal", 9, 11),
    Sketcher.Constraint("Symmetric", 1, 3, 7, 3, -1),
    Sketcher.Constraint("PointOnObject", 12, 3, -1),
    Sketcher.Constraint("Parallel", 0, 6),
    Sketcher.Constraint("Parallel", 2, 8),
    Sketcher.Constraint("Horizontal", 5, 3, 9, 3),
    Sketcher.Constraint("Horizontal", 3, 3, 11, 3),
    Sketcher.Constraint("Vertical", 7, 3, 12, 3),
    Sketcher.Constraint("Diameter", 12, 2.5),
    Sketcher.Constraint("Radius", 1, 0.3),
    Sketcher.Constraint("Angle", 0, Q("-30 deg")),
    Sketcher.Constraint("DistanceX", 0, 2, 2, 2, 2.0),
    Sketcher.Constraint("DistanceX", 0, 2, -1, 1, 19.4),
    Sketcher.Constraint("DistanceY", 4, 1, 4, 2, 1.962991),
])
pad6 = body5.newObject("PartDesign::Pad", "Pad005")
pad6.Profile = sketch9
pad6.Length = 5

doc.recompute()
